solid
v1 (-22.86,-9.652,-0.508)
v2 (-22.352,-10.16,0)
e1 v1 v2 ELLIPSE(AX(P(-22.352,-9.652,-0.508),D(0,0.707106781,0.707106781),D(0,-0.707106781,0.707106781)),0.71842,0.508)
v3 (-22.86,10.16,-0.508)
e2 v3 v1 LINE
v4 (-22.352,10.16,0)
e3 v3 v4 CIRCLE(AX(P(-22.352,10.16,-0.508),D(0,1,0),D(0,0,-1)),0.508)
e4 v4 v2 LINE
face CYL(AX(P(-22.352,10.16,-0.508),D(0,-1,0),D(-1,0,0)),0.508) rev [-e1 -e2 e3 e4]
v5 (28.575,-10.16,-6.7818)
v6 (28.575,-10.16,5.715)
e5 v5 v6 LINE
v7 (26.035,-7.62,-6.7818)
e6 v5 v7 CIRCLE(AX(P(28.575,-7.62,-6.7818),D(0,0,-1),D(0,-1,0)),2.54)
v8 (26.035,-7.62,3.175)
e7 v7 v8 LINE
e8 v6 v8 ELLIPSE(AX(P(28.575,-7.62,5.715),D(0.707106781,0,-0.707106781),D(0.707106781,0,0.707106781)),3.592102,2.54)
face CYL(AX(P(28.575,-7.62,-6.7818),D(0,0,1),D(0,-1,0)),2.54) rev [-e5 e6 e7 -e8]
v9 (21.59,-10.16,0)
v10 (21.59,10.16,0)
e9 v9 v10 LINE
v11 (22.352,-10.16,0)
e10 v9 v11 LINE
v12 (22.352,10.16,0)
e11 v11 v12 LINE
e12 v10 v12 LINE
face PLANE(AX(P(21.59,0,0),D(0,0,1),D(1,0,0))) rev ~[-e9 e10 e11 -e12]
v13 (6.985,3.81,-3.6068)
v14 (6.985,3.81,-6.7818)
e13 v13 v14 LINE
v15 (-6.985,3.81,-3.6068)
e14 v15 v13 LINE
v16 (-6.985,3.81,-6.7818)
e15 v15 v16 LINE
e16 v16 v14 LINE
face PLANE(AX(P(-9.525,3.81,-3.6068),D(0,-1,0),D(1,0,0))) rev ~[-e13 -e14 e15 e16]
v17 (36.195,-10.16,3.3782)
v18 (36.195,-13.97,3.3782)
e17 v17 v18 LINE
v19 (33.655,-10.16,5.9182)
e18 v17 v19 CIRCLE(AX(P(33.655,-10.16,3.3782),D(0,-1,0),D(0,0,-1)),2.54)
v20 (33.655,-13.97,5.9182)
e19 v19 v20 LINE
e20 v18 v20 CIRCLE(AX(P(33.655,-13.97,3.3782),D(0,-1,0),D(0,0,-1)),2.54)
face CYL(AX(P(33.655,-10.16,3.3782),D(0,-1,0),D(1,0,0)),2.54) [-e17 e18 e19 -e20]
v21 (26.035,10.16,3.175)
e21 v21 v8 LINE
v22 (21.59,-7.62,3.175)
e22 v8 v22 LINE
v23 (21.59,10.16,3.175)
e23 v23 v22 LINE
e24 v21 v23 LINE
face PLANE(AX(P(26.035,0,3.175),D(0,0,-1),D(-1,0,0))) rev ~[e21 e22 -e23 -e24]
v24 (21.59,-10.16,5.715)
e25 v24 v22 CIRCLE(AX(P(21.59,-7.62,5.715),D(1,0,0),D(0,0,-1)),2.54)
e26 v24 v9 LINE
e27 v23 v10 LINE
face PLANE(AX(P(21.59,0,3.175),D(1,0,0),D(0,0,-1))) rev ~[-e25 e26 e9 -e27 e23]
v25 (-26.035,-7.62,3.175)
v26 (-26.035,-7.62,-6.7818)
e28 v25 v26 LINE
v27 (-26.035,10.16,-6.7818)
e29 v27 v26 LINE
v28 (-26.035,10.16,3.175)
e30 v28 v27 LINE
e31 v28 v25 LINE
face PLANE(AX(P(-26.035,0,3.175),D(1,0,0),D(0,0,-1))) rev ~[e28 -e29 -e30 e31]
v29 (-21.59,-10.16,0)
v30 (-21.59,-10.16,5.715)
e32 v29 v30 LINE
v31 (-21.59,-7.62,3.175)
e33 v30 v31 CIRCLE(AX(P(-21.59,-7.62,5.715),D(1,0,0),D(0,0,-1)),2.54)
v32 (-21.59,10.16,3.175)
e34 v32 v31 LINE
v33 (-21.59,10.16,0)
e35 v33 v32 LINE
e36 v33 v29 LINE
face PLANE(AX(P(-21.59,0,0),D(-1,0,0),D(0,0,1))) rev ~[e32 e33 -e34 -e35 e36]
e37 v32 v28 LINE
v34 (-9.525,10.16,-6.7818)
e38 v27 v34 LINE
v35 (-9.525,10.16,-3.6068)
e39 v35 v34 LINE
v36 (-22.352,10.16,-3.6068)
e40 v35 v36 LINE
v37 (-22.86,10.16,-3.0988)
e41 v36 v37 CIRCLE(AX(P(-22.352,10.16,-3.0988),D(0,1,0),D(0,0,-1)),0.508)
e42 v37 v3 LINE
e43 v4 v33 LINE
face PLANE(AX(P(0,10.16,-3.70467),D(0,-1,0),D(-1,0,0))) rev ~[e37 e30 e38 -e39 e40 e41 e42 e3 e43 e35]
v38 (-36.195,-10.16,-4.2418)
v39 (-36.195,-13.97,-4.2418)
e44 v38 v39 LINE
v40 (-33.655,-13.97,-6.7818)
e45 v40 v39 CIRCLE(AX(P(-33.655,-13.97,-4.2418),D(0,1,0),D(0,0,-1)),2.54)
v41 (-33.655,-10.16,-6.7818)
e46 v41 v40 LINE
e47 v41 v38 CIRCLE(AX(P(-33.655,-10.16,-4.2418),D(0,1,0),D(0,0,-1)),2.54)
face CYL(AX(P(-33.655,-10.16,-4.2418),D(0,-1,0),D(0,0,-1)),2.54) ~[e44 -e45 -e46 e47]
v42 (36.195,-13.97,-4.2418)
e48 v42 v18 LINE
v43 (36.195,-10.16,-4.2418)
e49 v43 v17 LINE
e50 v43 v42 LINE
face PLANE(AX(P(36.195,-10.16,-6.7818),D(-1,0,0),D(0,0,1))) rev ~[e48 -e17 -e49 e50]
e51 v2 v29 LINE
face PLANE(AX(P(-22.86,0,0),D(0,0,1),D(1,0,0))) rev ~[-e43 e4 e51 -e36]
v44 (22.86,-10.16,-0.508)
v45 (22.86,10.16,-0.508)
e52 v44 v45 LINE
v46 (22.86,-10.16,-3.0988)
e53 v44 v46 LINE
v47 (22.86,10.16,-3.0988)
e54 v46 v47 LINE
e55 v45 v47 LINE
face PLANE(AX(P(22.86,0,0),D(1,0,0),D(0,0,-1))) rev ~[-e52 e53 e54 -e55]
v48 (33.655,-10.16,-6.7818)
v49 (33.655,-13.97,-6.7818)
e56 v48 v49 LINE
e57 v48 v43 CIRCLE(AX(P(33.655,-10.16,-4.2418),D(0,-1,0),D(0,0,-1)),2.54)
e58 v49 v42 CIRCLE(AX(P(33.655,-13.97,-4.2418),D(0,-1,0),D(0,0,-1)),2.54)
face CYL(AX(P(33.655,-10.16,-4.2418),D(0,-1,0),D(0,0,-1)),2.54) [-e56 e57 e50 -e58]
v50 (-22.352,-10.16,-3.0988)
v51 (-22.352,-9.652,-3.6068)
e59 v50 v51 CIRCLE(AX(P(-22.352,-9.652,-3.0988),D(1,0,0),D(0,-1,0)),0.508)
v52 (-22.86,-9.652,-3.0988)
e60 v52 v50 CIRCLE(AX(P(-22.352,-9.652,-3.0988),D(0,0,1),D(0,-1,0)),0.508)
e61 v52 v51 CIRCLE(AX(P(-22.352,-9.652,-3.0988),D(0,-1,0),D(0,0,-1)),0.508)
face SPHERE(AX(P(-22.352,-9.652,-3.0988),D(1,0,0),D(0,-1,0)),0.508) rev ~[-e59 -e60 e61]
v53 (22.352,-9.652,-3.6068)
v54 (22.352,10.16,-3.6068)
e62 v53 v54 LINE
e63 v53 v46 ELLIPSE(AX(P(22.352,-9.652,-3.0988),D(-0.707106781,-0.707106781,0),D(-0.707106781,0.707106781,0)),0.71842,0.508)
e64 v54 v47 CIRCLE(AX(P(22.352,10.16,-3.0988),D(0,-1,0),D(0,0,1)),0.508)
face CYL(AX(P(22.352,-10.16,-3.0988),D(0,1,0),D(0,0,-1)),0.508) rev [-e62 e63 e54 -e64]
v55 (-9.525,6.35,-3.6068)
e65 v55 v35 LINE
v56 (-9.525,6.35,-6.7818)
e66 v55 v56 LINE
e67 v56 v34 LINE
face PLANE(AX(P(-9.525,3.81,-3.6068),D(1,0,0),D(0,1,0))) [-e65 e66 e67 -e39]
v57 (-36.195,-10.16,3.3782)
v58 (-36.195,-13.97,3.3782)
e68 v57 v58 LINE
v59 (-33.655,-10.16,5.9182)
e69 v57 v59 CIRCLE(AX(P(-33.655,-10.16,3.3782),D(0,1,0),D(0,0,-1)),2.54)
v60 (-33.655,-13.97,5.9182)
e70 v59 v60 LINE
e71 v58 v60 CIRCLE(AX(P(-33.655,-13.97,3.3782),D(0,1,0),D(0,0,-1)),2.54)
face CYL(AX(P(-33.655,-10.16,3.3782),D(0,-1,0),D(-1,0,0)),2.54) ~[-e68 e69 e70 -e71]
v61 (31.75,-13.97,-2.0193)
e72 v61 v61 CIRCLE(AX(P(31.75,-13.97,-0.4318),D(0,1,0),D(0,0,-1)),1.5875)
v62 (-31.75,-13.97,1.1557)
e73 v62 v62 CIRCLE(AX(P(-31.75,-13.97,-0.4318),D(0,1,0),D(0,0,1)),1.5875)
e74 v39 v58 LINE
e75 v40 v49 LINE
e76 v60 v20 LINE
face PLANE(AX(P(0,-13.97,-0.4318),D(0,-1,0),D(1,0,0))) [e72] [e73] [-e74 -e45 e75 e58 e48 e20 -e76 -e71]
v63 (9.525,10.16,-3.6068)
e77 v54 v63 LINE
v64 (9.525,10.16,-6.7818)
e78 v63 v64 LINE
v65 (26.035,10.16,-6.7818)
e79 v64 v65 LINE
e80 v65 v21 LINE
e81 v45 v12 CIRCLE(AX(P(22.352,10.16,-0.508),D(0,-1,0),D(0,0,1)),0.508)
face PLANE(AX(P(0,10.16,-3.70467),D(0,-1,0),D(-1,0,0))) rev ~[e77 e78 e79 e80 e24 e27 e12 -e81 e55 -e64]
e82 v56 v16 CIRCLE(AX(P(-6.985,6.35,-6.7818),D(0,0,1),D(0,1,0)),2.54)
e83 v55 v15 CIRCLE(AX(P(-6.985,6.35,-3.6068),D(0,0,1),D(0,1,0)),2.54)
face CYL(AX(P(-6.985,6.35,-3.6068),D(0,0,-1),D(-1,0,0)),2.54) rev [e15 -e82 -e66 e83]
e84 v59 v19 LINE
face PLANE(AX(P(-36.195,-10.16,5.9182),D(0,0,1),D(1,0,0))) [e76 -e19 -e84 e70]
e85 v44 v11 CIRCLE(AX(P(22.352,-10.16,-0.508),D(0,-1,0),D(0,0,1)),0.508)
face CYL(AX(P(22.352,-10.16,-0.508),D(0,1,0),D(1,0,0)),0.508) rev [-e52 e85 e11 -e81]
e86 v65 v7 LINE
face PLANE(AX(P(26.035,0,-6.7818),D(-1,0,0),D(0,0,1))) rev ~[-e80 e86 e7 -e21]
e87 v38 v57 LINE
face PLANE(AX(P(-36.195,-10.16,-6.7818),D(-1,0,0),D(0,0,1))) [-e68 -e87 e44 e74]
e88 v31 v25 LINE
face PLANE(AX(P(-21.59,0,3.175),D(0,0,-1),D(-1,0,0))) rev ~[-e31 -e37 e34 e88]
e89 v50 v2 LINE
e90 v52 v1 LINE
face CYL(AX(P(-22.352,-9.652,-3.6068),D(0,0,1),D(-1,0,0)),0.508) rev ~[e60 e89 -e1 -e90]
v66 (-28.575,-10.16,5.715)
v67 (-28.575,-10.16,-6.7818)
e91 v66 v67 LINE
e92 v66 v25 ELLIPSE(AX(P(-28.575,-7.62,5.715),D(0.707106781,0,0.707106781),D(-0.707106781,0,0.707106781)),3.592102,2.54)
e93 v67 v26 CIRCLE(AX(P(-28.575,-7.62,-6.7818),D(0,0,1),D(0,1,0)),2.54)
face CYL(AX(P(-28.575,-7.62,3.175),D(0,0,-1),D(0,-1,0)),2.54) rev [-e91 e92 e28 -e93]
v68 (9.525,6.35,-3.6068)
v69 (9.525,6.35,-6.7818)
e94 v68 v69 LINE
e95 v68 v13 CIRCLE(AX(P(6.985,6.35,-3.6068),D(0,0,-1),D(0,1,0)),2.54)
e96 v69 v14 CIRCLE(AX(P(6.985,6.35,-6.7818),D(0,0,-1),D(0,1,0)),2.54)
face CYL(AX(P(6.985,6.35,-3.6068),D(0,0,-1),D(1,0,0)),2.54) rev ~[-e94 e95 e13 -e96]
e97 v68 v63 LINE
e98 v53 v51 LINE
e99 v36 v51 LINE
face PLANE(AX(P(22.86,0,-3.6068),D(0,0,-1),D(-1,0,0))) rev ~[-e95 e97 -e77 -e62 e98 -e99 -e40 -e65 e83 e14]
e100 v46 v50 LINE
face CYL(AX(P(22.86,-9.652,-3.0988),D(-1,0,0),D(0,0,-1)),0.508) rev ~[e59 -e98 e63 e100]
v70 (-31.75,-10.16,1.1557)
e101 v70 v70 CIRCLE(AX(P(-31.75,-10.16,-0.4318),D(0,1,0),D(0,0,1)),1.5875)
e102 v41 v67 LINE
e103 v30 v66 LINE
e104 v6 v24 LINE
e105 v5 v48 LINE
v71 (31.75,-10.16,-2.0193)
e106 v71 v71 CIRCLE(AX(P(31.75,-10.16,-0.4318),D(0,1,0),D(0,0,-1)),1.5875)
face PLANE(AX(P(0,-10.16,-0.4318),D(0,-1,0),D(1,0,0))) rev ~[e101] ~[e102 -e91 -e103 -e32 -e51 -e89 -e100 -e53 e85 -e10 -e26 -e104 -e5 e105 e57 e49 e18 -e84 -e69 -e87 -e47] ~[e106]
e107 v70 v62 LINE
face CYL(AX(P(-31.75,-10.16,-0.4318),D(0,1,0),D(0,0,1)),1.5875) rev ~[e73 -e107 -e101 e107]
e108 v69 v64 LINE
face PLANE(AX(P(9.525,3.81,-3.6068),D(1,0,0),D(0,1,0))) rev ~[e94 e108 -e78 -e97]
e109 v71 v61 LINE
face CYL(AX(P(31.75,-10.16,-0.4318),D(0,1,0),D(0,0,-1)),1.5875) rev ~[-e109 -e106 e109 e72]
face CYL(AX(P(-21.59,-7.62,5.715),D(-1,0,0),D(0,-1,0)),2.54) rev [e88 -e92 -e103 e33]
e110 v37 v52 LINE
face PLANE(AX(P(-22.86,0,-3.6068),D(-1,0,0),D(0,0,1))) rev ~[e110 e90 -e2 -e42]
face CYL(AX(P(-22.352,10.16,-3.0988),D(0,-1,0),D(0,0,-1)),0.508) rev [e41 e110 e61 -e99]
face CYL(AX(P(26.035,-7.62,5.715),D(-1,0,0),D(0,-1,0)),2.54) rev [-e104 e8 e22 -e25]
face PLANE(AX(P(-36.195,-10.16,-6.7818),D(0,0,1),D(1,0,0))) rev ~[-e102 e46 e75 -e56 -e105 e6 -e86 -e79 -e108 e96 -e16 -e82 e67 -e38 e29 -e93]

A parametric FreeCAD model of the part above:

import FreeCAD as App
import Part
import Sketcher

V = App.Vector
Q = App.Units.Quantity


def edges_at(feature, points):
    """Names of the edges that pass closest to the given points."""
    edges = feature.Shape.Edges
    near = lambda p: min(range(len(edges)), key=lambda i: edges[i].distToShape(Part.Vertex(*p))[0])
    return sorted({f"Edge{near(p) + 1}" for p in points})


def add_polygon(sketch, points):
    """Adds a closed chain of lines whose ends are joined by coincident constraints."""
    first, n = sketch.GeometryCount, len(points)
    for a, b in zip(points, points[1:] + points[:1]):
        sketch.addGeometry(Part.LineSegment(App.Vector(*a, 0), App.Vector(*b, 0)), False)
    for i in range(n):
        sketch.addConstraint(Sketcher.Constraint("Coincident", first + i, 2, first + (i + 1) % n, 1))

doc = App.newDocument("Part")
body = doc.addObject("PartDesign::Body", "Body")

# Sketch on XZ plane
sketch1 = body.newObject("Sketcher::SketchObject", "Sketch")
sketch1.AttachmentSupport = (doc.getObject("XZ_Plane"), [""])
sketch1.MapMode = "FlatFace"
add_polygon(sketch1, [(-22.9, -3.6), (22.9, -3.6), (22.9, 0), (21.6, 0), (21.6, 3.2), (26, 3.2), (26, -6.8), (-26, -6.8), (-26, 3.2), (-21.6, 3.2), (-21.6, 0), (-22.9, 0)])  # lines 0-11
sketch1.addConstraint(Sketcher.Constraint("Horizontal", 0))
sketch1.addConstraint(Sketcher.Constraint("Vertical", 1))
sketch1.addConstraint(Sketcher.Constraint("Horizontal", 2))
sketch1.addConstraint(Sketcher.Constraint("Vertical", 3))
sketch1.addConstraint(Sketcher.Constraint("Horizontal", 4))
sketch1.addConstraint(Sketcher.Constraint("Vertical", 5))
sketch1.addConstraint(Sketcher.Constraint("Horizontal", 6))
sketch1.addConstraint(Sketcher.Constraint("Vertical", 7))
sketch1.addConstraint(Sketcher.Constraint("Horizontal", 8))
sketch1.addConstraint(Sketcher.Constraint("Vertical", 9))
sketch1.addConstraint(Sketcher.Constraint("Horizontal", 10))
sketch1.addConstraint(Sketcher.Constraint("Vertical", 11))
sketch1.addConstraint(Sketcher.Constraint("Symmetric", 2, 2, 9, 2, -1, 1))
sketch1.addConstraint(Sketcher.Constraint("Symmetric", 4, 2, 7, 2, -2))
sketch1.addConstraint(Sketcher.Constraint("Symmetric", 1, 2, 10, 2, -2))
sketch1.addConstraint(Sketcher.Constraint("DistanceX", 0, 1, 0, 2, Q("1.8 in")))
sketch1.addConstraint(Sketcher.Constraint("DistanceX", 2, 2, 2, 1, Q("0.05 in")))
sketch1.addConstraint(Sketcher.Constraint("DistanceX", 6, 2, 6, 1, Q("2.05 in")))
sketch1.addConstraint(Sketcher.Constraint("DistanceY", 1, 1, 1, 2, Q("0.142 in")))
sketch1.addConstraint(Sketcher.Constraint("DistanceY", 3, 1, 3, 2, Q("0.125 in")))
sketch1.addConstraint(Sketcher.Constraint("DistanceY", 5, 2, 5, 1, Q("0.392 in")))
pad1 = body.newObject("PartDesign::Pad", "Pad")
pad1.Profile = sketch1
pad1.Length = Q("0.8 in")
pad1.Midplane = True

# Sketch on XY plane
sketch2 = body.newObject("Sketcher::SketchObject", "Sketch001")
sketch2.AttachmentSupport = (doc.getObject("XY_Plane"), [""])
sketch2.MapMode = "FlatFace"
sketch2.AttachmentOffset = App.Placement(V(0, 0, -0.142 * 25.4), App.Rotation())
add_polygon(sketch2, [(-10, 10), (-10, 4), (10, 4), (10, 10)])  # lines 0-3
sketch2.addConstraint(Sketcher.Constraint("Vertical", 0))
sketch2.addConstraint(Sketcher.Constraint("Horizontal", 1))
sketch2.addConstraint(Sketcher.Constraint("Vertical", 2))
sketch2.addConstraint(Sketcher.Constraint("Horizontal", 3))
sketch2.addConstraint(Sketcher.Constraint("DistanceX", 1, 1, 1, 2, Q("0.75 in")))
sketch2.addConstraint(Sketcher.Constraint("DistanceY", 0, 2, 0, 1, Q("0.25 in")))
sketch2.addConstraint(Sketcher.Constraint("DistanceY", -1, 1, 2, 2, Q("0.4 in")))
sketch2.addConstraint(Sketcher.Constraint("DistanceX", 0, 2, -1, 1, Q("0.375 in")))
pocket1 = body.newObject("PartDesign::Pocket", "Pocket")
pocket1.Profile = sketch2
pocket1.Length = Q("0.75 in")

# Sketch on XZ plane
sketch3 = body.newObject("Sketcher::SketchObject", "Sketch002")
sketch3.AttachmentSupport = (doc.getObject("XZ_Plane"), [""])
sketch3.MapMode = "FlatFace"
sketch3.AttachmentOffset = App.Placement(V(0, 0, 0.4 * 25.4), App.Rotation())
add_polygon(sketch3, [(-36, 6), (-36, -7), (36, -7), (36, 6)])  # lines 0-3
sketch3.addConstraint(Sketcher.Constraint("Vertical", 0))
sketch3.addConstraint(Sketcher.Constraint("Horizontal", 1))
sketch3.addConstraint(Sketcher.Constraint("Vertical", 2))
sketch3.addConstraint(Sketcher.Constraint("Horizontal", 3))
sketch3.addConstraint(Sketcher.Constraint("DistanceY", 0, 2, 0, 1, Q("0.5 in")))
sketch3.addConstraint(Sketcher.Constraint("DistanceX", 1, 1, 1, 2, Q("2.85 in")))
sketch3.addConstraint(Sketcher.Constraint("DistanceX", 0, 2, -1, 1, Q("1.425 in")))
sketch3.addConstraint(Sketcher.Constraint("DistanceY", 0, 2, -1, 1, Q("0.267 in")))
pad2 = body.newObject("PartDesign::Pad", "Pad001")
pad2.Profile = sketch3
pad2.Length = Q("0.15 in")

# Sketch on XZ plane
sketch4 = body.newObject("Sketcher::SketchObject", "Sketch003")
sketch4.AttachmentSupport = (doc.getObject("XZ_Plane"), [""])
sketch4.MapMode = "FlatFace"
sketch4.AttachmentOffset = App.Placement(V(0, 0, 0.4 * 25.4), App.Rotation())
sketch4.addGeometry(Part.Circle(V(-31.8, -0.4, 0), V(0, 0, 1), 1.6), False)
sketch4.addGeometry(Part.Circle(V(31.8, -0.4, 0), V(0, 0, 1), 1.6), False)
sketch4.addConstraint(Sketcher.Constraint("Equal", 0, 1))
sketch4.addConstraint(Sketcher.Constraint("Symmetric", 0, 3, 1, 3, -2))
sketch4.addConstraint(Sketcher.Constraint("Diameter", 0, Q("0.125 in")))
sketch4.addConstraint(Sketcher.Constraint("DistanceX", 0, 3, 1, 3, Q("2.5 in")))
sketch4.addConstraint(Sketcher.Constraint("DistanceY", 0, 3, -1, 1, Q("0.017 in")))
pocket2 = body.newObject("PartDesign::Pocket", "Pocket001")
pocket2.Profile = sketch4
pocket2.Type = "ThroughAll"
pocket2.Reversed = True
doc.recompute()

fillet = body.newObject("PartDesign::Fillet", "Fillet")
fillet.Base = (pocket2, edges_at(pocket2, [
    (-23.812, -10.16, 3.175),
    (-26.035, -10.16, -1.803),
    (26.035, -10.16, -1.803),
    (23.812, -10.16, 3.175),
]))
fillet.Radius = Q("0.1 in")
doc.recompute()

fillet2 = body.newObject("PartDesign::Fillet", "Fillet001")
fillet2.Base = (fillet, edges_at(fillet, [
    (0, -10.16, -3.607),
    (-22.86, -10.16, -1.803),
    (-22.86, 0, 0),
    (22.86, 0, 0),
    (22.86, 0, -3.607),
    (-22.86, 0, -3.607),
]))
fillet2.Radius = Q("0.02 in")
doc.recompute()

fillet3 = body.newObject("PartDesign::Fillet", "Fillet002")
fillet3.Base = (fillet2, edges_at(fillet2, [(9.525, 3.81, -5.194), (-9.525, 3.81, -5.194)]))
fillet3.Radius = Q("0.1 in")
doc.recompute()

fillet4 = body.newObject("PartDesign::Fillet", "Fillet003")
fillet4.Base = (fillet3, edges_at(fillet3, [
    (-36.195, -12.065, 5.918),
    (-36.195, -12.065, -6.782),
    (36.195, -12.065, -6.782),
    (36.195, -12.065, 5.918),
]))
fillet4.Radius = Q("0.1 in")

doc.recompute()
